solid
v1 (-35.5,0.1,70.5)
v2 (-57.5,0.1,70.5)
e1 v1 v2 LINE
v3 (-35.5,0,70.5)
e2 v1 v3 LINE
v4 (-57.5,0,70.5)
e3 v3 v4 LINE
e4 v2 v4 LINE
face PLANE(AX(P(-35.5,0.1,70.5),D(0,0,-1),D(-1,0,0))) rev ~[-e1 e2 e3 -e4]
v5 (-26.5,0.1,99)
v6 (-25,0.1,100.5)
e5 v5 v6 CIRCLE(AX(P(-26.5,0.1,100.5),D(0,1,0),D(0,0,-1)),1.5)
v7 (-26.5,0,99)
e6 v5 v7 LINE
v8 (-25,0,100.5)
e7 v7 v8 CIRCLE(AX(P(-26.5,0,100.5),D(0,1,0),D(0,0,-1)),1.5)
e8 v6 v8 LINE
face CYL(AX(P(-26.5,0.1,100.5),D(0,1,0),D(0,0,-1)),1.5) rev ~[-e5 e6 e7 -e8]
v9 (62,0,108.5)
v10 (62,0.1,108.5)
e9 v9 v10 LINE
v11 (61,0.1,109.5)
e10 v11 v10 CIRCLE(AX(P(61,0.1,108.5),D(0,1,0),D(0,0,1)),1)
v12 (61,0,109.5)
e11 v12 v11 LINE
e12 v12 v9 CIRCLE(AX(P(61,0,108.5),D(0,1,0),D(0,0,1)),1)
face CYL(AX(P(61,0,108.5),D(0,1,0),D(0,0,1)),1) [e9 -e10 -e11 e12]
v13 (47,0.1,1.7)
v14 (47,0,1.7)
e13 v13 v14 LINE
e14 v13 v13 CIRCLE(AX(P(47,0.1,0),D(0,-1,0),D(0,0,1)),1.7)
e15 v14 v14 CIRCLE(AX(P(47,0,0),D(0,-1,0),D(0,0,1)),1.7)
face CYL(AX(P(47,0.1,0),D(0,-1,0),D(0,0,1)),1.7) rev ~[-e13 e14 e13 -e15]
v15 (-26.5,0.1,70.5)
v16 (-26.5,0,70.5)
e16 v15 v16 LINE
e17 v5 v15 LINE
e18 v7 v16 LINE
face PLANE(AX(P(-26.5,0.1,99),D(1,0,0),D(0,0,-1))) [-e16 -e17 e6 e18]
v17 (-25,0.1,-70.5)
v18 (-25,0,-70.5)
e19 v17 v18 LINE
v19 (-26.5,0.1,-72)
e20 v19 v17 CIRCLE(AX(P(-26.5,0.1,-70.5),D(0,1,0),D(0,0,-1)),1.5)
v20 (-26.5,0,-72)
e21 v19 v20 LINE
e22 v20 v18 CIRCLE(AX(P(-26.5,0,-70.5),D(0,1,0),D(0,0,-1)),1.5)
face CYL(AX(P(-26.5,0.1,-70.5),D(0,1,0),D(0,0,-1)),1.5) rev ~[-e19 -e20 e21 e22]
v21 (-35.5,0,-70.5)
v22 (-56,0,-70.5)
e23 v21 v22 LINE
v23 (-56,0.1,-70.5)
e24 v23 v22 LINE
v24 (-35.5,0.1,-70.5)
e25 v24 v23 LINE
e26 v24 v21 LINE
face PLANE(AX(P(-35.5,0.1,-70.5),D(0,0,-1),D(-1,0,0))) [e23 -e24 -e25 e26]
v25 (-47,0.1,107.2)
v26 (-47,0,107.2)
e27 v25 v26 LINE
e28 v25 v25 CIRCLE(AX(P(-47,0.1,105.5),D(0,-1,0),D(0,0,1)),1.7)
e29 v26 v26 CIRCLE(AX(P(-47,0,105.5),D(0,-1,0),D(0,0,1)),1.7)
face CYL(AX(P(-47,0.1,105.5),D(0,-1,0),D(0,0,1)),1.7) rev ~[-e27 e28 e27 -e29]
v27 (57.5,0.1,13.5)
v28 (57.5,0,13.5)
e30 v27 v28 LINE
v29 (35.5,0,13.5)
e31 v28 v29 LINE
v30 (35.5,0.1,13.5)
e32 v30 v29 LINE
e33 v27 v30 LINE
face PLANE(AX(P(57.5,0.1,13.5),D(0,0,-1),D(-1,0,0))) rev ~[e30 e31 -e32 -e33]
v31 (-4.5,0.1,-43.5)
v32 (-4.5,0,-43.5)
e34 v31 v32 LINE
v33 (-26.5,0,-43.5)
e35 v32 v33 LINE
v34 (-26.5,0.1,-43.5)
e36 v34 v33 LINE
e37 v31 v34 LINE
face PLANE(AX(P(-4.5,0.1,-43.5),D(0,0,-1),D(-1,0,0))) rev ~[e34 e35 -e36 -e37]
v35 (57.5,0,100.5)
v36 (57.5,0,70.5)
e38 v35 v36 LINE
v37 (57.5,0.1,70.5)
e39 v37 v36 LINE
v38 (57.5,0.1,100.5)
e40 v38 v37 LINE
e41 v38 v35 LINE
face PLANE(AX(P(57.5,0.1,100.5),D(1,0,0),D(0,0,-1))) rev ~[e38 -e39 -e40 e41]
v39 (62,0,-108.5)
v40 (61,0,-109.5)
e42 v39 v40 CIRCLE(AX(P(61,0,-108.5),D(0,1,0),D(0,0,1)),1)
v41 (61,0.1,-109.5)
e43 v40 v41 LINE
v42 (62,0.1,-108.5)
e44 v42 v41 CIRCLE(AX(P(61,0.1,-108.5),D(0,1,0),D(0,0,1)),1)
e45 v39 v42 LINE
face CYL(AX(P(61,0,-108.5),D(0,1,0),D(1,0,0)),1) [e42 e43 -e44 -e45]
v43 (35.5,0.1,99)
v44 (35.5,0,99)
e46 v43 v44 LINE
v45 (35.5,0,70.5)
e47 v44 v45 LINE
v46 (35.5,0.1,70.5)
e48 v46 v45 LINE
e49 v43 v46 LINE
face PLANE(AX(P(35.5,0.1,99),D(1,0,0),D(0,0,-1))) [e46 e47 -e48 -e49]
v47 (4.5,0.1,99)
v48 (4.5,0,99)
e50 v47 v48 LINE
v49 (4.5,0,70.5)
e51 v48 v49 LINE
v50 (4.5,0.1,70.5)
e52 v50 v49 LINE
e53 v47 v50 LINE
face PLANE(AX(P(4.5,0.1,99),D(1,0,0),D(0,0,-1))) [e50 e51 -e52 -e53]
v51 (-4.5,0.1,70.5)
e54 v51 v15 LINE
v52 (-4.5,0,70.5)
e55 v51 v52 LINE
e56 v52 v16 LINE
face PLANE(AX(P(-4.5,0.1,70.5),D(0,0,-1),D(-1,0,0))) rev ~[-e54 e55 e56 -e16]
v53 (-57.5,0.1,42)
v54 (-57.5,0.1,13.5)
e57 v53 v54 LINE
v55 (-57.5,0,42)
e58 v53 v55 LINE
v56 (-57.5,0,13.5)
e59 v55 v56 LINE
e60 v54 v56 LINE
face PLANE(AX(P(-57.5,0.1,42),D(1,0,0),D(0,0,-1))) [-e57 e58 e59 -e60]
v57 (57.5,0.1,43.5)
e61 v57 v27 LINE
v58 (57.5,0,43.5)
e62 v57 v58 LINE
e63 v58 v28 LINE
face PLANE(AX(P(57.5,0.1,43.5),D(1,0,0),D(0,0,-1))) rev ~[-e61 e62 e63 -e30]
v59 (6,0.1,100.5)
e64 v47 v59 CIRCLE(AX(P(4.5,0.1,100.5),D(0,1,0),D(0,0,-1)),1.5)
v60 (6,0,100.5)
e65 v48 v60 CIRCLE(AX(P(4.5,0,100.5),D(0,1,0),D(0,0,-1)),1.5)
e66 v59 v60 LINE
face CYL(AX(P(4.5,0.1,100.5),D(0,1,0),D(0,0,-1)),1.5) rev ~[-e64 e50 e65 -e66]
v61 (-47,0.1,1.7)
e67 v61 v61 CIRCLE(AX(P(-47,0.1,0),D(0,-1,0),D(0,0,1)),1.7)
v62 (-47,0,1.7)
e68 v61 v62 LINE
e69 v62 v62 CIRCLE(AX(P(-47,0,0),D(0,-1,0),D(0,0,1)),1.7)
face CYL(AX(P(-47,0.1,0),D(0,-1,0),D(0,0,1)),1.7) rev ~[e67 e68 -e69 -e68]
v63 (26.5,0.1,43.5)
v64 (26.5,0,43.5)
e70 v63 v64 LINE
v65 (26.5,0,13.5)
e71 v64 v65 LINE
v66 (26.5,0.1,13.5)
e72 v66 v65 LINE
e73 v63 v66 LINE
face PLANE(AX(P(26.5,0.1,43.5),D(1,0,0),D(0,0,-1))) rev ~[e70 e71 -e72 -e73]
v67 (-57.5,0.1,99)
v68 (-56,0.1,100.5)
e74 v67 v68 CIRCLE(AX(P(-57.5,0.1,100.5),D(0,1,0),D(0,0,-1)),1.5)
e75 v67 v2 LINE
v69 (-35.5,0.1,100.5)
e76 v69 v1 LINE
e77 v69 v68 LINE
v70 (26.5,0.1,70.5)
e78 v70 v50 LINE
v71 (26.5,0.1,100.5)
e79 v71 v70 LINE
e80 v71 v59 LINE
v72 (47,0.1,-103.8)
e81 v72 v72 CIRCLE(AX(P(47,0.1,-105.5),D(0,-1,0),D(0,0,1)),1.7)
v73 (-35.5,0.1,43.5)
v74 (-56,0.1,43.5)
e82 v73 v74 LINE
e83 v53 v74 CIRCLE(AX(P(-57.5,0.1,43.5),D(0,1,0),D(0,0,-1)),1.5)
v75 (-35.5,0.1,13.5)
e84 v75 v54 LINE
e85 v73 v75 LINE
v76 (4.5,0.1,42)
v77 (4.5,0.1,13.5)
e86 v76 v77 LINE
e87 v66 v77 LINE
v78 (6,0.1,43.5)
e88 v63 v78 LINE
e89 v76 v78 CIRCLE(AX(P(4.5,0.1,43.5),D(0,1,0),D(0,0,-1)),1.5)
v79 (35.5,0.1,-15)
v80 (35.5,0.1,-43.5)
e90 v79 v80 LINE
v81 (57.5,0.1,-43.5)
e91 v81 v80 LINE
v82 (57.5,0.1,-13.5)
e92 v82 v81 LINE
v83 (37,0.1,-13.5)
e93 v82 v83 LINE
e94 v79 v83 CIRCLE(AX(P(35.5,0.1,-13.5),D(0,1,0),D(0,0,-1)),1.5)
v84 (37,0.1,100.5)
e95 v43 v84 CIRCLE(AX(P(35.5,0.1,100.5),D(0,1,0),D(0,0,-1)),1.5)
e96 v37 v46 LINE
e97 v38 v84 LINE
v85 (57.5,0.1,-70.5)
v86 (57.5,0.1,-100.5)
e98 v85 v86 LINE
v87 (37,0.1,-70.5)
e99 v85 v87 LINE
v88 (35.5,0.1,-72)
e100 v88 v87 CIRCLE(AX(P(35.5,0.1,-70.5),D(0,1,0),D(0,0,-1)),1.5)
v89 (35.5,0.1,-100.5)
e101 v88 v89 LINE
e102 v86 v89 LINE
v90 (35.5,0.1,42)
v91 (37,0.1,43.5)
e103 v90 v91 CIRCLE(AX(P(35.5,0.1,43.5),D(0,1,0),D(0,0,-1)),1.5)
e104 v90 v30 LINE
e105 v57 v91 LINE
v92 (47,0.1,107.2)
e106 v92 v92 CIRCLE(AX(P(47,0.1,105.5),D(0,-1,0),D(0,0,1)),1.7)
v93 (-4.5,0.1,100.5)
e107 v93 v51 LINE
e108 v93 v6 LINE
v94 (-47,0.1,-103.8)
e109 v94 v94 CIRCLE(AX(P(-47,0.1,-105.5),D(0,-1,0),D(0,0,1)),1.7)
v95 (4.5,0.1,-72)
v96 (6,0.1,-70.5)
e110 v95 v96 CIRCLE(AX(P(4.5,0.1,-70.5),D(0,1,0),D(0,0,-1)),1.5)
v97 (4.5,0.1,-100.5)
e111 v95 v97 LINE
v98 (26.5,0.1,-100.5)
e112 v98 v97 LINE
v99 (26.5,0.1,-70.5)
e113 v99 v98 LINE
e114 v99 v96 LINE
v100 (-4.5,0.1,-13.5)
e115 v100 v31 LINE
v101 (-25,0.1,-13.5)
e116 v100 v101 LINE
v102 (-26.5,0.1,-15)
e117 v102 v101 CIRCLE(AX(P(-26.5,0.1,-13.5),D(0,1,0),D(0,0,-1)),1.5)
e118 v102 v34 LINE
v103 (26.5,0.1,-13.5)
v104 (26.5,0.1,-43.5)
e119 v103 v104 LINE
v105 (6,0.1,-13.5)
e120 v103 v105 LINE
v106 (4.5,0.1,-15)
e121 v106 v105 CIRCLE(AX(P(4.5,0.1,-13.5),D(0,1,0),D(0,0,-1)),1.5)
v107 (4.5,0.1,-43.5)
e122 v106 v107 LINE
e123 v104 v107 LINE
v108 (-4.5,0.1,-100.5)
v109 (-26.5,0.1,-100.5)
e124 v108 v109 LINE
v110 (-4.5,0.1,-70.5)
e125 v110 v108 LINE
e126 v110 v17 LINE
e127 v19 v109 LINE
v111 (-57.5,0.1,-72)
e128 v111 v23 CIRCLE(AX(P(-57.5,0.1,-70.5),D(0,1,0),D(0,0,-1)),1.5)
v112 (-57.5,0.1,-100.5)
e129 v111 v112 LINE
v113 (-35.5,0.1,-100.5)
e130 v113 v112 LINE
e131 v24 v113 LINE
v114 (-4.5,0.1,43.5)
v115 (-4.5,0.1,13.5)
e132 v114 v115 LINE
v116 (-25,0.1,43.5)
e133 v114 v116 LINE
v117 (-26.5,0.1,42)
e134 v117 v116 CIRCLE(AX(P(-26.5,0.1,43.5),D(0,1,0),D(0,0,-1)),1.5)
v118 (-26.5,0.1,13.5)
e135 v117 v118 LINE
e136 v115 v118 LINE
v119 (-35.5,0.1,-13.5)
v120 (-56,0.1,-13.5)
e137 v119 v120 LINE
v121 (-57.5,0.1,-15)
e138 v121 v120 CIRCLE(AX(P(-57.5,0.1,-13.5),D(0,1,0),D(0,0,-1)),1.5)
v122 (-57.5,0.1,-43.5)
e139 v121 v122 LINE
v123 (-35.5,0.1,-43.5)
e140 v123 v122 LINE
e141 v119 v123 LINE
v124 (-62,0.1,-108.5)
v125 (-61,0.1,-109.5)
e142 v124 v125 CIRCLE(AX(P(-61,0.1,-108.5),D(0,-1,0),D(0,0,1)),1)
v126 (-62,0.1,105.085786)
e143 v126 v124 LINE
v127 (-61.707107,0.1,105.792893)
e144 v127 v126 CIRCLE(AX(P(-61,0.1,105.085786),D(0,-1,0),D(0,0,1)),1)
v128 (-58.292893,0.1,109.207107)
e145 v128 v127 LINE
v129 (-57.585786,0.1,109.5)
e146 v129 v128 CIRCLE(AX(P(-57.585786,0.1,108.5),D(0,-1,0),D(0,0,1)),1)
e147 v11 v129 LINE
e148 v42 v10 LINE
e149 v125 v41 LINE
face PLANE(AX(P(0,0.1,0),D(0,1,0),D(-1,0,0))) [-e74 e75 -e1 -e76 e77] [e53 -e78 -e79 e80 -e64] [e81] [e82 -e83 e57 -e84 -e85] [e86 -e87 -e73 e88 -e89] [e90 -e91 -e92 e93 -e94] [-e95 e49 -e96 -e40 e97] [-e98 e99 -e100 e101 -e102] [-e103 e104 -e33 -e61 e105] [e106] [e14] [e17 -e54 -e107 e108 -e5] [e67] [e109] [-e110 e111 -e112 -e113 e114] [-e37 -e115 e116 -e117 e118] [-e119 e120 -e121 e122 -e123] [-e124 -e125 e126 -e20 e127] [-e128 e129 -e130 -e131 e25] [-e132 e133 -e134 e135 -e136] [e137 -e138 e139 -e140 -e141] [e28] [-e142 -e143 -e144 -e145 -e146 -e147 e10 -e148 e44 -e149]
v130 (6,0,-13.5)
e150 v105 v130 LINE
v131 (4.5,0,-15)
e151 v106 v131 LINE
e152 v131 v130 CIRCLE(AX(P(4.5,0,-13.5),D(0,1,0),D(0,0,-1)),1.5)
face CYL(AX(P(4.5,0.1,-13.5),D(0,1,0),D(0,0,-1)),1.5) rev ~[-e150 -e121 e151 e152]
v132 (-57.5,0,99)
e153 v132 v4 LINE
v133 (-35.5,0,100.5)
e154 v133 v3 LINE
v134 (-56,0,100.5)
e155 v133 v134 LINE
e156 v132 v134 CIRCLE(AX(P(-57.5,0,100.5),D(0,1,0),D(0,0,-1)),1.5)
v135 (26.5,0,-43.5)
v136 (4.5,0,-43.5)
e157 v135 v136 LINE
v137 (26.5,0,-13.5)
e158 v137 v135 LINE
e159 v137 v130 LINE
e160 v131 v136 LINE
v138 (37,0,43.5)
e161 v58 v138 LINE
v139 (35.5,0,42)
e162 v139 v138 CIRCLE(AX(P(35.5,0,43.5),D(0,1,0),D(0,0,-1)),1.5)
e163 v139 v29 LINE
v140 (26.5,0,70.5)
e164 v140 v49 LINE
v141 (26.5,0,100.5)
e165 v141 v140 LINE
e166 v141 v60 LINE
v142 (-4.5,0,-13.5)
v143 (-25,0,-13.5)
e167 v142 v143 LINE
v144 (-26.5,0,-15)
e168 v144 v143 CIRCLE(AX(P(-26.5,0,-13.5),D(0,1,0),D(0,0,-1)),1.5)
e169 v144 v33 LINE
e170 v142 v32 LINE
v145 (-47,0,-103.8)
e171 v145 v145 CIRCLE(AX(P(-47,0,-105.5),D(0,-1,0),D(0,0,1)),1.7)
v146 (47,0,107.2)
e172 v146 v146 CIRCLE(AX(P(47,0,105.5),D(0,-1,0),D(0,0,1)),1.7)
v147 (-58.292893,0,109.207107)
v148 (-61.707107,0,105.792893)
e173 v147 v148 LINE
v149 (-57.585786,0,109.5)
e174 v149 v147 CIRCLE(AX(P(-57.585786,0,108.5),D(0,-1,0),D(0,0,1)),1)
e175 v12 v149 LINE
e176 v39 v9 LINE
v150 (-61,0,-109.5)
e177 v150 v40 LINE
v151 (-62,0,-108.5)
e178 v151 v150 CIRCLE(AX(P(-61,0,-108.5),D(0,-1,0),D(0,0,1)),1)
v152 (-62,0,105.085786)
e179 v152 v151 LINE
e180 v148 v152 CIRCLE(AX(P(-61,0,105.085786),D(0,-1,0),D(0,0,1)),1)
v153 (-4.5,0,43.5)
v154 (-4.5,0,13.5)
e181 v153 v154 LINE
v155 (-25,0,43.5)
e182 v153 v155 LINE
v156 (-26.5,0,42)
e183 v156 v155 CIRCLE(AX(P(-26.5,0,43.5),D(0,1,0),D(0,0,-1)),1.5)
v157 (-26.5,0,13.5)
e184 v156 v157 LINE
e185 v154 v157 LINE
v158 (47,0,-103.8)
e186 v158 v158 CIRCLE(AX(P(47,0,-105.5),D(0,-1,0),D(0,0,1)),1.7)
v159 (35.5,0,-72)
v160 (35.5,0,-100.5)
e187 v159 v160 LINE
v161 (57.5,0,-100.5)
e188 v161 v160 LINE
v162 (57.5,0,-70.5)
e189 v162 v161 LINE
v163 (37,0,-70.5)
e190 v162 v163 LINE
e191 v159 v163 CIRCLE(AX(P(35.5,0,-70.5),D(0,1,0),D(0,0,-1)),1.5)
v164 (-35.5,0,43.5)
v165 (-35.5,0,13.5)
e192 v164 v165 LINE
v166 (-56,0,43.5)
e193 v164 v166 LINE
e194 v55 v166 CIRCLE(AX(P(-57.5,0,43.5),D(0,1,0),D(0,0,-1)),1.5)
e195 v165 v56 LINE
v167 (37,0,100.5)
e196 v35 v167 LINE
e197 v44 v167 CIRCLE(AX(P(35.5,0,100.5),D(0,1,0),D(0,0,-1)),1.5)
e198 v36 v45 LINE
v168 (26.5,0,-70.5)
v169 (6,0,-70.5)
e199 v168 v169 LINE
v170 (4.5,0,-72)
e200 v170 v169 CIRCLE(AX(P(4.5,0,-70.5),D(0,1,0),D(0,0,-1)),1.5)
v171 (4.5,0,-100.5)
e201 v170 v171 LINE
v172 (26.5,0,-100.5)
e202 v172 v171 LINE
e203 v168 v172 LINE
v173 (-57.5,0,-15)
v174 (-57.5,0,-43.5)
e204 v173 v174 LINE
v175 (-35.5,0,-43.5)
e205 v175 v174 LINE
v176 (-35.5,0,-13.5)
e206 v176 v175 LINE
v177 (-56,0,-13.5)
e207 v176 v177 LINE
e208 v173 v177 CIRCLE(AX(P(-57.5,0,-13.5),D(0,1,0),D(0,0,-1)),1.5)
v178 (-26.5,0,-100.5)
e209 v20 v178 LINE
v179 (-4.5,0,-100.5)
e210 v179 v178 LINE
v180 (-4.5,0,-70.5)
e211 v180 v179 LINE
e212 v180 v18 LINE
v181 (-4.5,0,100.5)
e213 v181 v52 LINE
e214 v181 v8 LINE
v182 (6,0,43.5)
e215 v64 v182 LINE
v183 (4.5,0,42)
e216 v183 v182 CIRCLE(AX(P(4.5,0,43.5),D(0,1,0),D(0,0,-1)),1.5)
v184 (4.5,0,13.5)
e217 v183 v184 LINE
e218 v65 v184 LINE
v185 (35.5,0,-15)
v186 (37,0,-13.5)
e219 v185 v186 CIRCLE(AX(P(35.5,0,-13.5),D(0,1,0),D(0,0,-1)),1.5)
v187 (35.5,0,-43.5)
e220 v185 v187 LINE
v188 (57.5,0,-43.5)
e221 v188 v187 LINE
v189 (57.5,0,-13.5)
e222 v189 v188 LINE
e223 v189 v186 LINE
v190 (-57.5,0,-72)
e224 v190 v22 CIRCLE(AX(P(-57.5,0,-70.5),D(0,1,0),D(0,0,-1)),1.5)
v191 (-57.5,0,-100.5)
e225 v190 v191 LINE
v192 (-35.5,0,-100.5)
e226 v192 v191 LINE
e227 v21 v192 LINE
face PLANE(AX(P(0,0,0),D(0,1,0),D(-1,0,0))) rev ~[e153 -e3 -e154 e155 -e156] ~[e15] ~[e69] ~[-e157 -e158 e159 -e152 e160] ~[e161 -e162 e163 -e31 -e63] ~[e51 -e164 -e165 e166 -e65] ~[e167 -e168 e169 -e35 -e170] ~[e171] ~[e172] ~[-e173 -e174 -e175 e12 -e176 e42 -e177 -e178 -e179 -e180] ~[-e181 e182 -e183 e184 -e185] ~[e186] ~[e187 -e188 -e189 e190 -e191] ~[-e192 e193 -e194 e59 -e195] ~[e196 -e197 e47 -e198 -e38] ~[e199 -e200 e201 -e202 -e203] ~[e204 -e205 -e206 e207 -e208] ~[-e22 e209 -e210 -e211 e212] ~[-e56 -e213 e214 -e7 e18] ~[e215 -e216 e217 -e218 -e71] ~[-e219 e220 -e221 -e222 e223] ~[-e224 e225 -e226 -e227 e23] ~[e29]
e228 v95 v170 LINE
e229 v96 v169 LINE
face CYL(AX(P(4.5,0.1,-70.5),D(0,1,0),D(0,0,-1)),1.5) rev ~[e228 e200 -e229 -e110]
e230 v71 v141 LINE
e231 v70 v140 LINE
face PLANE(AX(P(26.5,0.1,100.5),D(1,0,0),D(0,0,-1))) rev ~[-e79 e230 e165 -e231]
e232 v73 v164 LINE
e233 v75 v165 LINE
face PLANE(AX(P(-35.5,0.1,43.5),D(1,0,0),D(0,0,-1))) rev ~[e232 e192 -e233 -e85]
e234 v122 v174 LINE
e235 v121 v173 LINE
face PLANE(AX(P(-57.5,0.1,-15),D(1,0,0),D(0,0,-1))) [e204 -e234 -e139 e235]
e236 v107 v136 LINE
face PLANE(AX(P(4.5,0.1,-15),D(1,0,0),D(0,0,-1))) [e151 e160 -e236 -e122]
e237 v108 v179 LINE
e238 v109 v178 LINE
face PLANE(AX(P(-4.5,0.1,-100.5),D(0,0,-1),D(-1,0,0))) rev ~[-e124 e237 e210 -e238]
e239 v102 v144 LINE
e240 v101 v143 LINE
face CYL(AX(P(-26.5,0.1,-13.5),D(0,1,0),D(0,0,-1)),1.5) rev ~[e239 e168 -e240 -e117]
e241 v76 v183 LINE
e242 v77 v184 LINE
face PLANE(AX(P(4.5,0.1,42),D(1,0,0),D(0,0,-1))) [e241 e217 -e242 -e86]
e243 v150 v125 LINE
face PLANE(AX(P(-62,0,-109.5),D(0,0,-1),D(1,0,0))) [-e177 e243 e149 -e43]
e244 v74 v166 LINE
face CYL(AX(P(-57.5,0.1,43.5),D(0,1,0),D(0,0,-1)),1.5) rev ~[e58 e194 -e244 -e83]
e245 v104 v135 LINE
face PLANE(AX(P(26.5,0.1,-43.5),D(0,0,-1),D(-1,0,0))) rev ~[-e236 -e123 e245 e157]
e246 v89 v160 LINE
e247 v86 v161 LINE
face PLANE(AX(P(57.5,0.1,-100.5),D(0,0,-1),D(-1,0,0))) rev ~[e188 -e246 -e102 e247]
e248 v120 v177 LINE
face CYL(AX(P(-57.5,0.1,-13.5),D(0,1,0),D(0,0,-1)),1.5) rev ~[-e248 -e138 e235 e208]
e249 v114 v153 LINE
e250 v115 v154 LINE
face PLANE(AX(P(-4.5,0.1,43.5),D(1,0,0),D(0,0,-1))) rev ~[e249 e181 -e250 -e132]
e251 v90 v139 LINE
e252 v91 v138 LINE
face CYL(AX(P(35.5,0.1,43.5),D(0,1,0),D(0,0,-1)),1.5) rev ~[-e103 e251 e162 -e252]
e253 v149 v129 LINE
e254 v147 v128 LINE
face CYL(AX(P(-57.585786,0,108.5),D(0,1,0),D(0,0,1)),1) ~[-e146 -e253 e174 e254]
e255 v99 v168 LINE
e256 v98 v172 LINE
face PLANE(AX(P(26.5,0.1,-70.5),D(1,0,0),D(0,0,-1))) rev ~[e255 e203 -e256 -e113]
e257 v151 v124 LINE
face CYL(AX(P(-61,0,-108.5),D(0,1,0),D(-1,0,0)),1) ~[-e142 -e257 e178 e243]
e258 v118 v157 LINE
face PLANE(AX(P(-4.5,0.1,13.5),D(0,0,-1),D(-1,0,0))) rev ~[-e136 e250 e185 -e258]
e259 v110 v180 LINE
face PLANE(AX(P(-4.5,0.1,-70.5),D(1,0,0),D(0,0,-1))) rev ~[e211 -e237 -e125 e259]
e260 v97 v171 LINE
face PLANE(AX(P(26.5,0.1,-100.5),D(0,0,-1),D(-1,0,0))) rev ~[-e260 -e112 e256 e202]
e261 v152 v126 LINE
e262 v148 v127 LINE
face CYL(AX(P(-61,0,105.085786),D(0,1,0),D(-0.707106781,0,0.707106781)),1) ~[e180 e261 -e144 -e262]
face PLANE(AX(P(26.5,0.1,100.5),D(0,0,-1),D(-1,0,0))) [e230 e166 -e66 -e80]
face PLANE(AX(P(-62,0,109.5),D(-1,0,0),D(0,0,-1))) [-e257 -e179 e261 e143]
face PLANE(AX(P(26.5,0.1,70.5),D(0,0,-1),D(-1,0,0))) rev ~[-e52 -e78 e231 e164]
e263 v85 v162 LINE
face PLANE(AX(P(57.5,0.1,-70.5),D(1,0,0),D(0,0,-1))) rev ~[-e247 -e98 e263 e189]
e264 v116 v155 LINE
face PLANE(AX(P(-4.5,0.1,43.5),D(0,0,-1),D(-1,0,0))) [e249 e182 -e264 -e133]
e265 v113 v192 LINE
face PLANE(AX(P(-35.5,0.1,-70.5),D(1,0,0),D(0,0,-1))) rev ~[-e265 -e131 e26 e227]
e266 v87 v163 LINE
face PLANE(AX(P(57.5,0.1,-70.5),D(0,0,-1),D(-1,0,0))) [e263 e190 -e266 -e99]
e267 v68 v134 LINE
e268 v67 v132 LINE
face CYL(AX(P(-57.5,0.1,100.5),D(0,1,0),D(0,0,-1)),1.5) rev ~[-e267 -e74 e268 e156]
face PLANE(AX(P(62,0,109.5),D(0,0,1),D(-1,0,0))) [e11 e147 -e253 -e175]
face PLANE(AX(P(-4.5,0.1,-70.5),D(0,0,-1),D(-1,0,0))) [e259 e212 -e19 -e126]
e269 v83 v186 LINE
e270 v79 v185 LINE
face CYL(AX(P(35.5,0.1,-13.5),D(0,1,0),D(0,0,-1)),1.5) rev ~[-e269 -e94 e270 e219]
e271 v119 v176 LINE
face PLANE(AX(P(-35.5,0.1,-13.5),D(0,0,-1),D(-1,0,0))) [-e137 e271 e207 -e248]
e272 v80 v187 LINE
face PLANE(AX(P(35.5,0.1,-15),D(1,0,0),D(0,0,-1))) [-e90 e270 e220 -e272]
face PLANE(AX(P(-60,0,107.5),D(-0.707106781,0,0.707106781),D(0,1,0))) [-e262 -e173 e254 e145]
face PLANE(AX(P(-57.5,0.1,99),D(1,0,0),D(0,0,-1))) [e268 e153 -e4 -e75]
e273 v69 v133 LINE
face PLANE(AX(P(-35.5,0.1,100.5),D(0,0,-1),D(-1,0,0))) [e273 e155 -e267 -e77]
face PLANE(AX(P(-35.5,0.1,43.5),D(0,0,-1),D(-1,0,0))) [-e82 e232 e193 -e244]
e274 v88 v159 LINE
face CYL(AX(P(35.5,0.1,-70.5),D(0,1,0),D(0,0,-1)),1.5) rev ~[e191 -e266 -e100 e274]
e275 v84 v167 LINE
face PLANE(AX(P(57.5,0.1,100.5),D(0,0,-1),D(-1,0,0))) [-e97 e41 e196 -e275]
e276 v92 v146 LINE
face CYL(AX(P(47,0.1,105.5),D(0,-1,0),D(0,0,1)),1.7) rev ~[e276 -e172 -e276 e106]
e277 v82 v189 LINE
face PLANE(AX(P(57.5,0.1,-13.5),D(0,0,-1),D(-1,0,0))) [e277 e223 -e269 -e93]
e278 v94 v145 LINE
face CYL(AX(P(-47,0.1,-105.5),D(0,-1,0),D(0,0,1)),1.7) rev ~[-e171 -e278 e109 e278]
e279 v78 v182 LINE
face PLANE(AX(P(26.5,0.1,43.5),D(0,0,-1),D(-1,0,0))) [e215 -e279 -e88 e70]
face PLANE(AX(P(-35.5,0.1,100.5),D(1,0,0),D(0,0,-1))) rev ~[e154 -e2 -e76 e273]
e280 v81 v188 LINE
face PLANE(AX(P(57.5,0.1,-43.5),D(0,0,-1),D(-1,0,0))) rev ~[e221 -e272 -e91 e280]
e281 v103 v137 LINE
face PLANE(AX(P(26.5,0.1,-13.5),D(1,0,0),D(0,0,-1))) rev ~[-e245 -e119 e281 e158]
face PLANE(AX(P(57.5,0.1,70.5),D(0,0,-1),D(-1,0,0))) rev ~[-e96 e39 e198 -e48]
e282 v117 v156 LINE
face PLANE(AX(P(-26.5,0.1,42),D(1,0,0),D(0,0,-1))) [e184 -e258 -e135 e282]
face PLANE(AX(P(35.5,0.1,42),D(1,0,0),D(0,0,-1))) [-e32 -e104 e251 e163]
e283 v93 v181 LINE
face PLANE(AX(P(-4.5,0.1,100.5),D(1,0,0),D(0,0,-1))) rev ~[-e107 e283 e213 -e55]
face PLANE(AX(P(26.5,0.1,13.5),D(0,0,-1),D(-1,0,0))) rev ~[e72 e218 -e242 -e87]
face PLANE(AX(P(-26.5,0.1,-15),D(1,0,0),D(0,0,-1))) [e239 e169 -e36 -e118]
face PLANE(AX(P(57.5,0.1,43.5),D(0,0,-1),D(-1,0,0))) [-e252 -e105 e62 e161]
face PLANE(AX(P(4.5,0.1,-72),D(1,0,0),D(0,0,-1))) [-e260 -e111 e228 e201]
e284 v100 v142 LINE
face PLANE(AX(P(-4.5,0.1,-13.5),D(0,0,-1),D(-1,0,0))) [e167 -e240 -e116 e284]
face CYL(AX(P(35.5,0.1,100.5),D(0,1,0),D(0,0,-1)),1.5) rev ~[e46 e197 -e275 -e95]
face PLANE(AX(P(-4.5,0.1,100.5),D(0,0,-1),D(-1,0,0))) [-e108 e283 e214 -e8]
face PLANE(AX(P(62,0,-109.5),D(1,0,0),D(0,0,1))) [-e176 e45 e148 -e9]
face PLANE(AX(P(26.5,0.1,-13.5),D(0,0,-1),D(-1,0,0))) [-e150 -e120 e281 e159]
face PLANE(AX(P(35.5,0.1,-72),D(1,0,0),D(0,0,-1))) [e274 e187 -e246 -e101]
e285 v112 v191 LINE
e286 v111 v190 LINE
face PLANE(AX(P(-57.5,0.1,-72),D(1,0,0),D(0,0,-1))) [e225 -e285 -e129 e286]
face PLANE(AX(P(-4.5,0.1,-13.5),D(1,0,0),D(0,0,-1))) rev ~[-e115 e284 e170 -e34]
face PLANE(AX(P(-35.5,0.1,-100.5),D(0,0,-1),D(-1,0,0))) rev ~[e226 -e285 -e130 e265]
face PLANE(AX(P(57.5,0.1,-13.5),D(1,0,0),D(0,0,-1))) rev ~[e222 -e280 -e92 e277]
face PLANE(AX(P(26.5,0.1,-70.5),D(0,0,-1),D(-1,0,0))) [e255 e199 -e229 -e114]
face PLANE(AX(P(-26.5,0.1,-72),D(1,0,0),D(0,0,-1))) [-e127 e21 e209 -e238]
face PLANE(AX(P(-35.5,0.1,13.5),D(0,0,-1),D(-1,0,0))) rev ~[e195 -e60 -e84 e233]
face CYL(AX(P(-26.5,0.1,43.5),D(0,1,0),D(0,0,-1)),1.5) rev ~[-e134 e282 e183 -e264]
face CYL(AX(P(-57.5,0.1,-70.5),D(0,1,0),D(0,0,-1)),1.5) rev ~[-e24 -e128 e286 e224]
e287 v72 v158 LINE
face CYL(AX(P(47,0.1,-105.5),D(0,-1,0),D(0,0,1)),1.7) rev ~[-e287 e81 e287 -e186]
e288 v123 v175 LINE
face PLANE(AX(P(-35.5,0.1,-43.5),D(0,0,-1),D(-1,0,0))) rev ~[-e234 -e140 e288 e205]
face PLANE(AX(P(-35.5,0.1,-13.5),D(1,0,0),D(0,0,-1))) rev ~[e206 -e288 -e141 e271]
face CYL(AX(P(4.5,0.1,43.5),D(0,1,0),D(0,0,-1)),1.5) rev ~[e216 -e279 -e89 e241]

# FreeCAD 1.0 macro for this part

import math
import FreeCAD as App
import Part
import Sketcher


def edges_at(feature, points):
    """Names of the edges that pass closest to the given points."""
    edges = feature.Shape.Edges
    near = lambda p: min(range(len(edges)), key=lambda i: edges[i].distToShape(Part.Vertex(*p))[0])
    return sorted({f"Edge{near(p) + 1}" for p in points})


def add_polygon(sketch, points):
    """Adds a closed chain of lines whose ends are joined by coincident constraints."""
    first, n = sketch.GeometryCount, len(points)
    for a, b in zip(points, points[1:] + points[:1]):
        sketch.addGeometry(Part.LineSegment(App.Vector(*a, 0), App.Vector(*b, 0)), False)
    for i in range(n):
        sketch.addConstraint(Sketcher.Constraint("Coincident", first + i, 2, first + (i + 1) % n, 1))

doc = App.newDocument("Part")
body = doc.addObject("PartDesign::Body", "Body")

# Sketch on XZ plane
sketch1 = body.newObject("Sketcher::SketchObject", "Sketch")
sketch1.AttachmentSupport = (doc.getObject("XZ_Plane"), [""])
sketch1.MapMode = "FlatFace"
add_polygon(sketch1, [(-62, 110), (62, 110), (62, -110), (-62, -110)])  # lines 0-3
sketch1.addConstraint([
    Sketcher.Constraint("Horizontal", 0),
    Sketcher.Constraint("Vertical", 1),
    Sketcher.Constraint("Horizontal", 2),
    Sketcher.Constraint("Vertical", 3),
    Sketcher.Constraint("Symmetric", 0, 2, 2, 2, -1, 1),
    Sketcher.Constraint("DistanceX", 0, 1, 0, 2, 124.0),
    Sketcher.Constraint("DistanceY", 1, 2, 1, 1, 219.0),
])
pad1 = body.newObject("PartDesign::Pad", "Pad")
pad1.Profile = sketch1
pad1.Length = 0.1
pad1.Reversed = True
doc.recompute()

chamfer = body.newObject("PartDesign::Chamfer", "Chamfer")
chamfer.Base = (pad1, edges_at(pad1, [(-62, 0.05, 109.5)]))
chamfer.Size = 4

# Sketch on XZ plane
sketch2 = body.newObject("Sketcher::SketchObject", "Sketch001")
sketch2.AttachmentSupport = (doc.getObject("XZ_Plane"), [""])
sketch2.MapMode = "FlatFace"
sketch2.AttachmentOffset = App.Placement(App.Vector(0, 0, -0.1), App.Rotation())
sketch2.addGeometry([
    Part.LineSegment(App.Vector(-56, 100.5, 0), App.Vector(-35.5, 100.5, 0)),  # 0
    Part.LineSegment(App.Vector(-35.5, 100.5, 0), App.Vector(-35.5, 70.5, 0)),  # 1
    Part.LineSegment(App.Vector(-35.5, 70.5, 0), App.Vector(-57.5, 70.5, 0)),  # 2
    Part.LineSegment(App.Vector(-57.5, 70.5, 0), App.Vector(-57.5, 99, 0)),  # 3
    Part.ArcOfCircle(Part.Circle(App.Vector(-57.5, 100.5, 0), App.Vector(0, 0, 1), 1.5), math.radians(0), math.radians(270)),  # 4
    Part.LineSegment(App.Vector(-56, 43.5, 0), App.Vector(-35.5, 43.5, 0)),  # 5
    Part.LineSegment(App.Vector(-35.5, 43.5, 0), App.Vector(-35.5, 13.5, 0)),  # 6
    Part.LineSegment(App.Vector(-35.5, 13.5, 0), App.Vector(-57.5, 13.5, 0)),  # 7
    Part.LineSegment(App.Vector(-57.5, 13.5, 0), App.Vector(-57.5, 42, 0)),  # 8
    Part.ArcOfCircle(Part.Circle(App.Vector(-57.5, 43.5, 0), App.Vector(0, 0, 1), 1.5), math.radians(0), math.radians(270)),  # 9
    Part.LineSegment(App.Vector(-56, -13.5, 0), App.Vector(-35.5, -13.5, 0)),  # 10
    Part.LineSegment(App.Vector(-35.5, -13.5, 0), App.Vector(-35.5, -43.5, 0)),  # 11
    Part.LineSegment(App.Vector(-35.5, -43.5, 0), App.Vector(-57.5, -43.5, 0)),  # 12
    Part.LineSegment(App.Vector(-57.5, -43.5, 0), App.Vector(-57.5, -15, 0)),  # 13
    Part.ArcOfCircle(Part.Circle(App.Vector(-57.5, -13.5, 0), App.Vector(0, 0, 1), 1.5), math.radians(0), math.radians(270)),  # 14
    Part.LineSegment(App.Vector(-56, -70.5, 0), App.Vector(-35.5, -70.5, 0)),  # 15
    Part.LineSegment(App.Vector(-35.5, -70.5, 0), App.Vector(-35.5, -100.5, 0)),  # 16
    Part.LineSegment(App.Vector(-35.5, -100.5, 0), App.Vector(-57.5, -100.5, 0)),  # 17
    Part.LineSegment(App.Vector(-57.5, -100.5, 0), App.Vector(-57.5, -72, 0)),  # 18
    Part.ArcOfCircle(Part.Circle(App.Vector(-57.5, -70.5, 0), App.Vector(0, 0, 1), 1.5), math.radians(0), math.radians(270)),  # 19
    Part.LineSegment(App.Vector(-25, 100.5, 0), App.Vector(-4.5, 100.5, 0)),  # 20
    Part.LineSegment(App.Vector(-4.5, 100.5, 0), App.Vector(-4.5, 70.5, 0)),  # 21
    Part.LineSegment(App.Vector(-4.5, 70.5, 0), App.Vector(-26.5, 70.5, 0)),  # 22
    Part.LineSegment(App.Vector(-26.5, 70.5, 0), App.Vector(-26.5, 99, 0)),  # 23
    Part.ArcOfCircle(Part.Circle(App.Vector(-26.5, 100.5, 0), App.Vector(0, 0, 1), 1.5), math.radians(0), math.radians(270)),  # 24
    Part.LineSegment(App.Vector(-25, 43.5, 0), App.Vector(-4.5, 43.5, 0)),  # 25
    Part.LineSegment(App.Vector(-4.5, 43.5, 0), App.Vector(-4.5, 13.5, 0)),  # 26
    Part.LineSegment(App.Vector(-4.5, 13.5, 0), App.Vector(-26.5, 13.5, 0)),  # 27
    Part.LineSegment(App.Vector(-26.5, 13.5, 0), App.Vector(-26.5, 42, 0)),  # 28
    Part.ArcOfCircle(Part.Circle(App.Vector(-26.5, 43.5, 0), App.Vector(0, 0, 1), 1.5), math.radians(0), math.radians(270)),  # 29
    Part.LineSegment(App.Vector(-25, -13.5, 0), App.Vector(-4.5, -13.5, 0)),  # 30
    Part.LineSegment(App.Vector(-4.5, -13.5, 0), App.Vector(-4.5, -43.5, 0)),  # 31
    Part.LineSegment(App.Vector(-4.5, -43.5, 0), App.Vector(-26.5, -43.5, 0)),  # 32
    Part.LineSegment(App.Vector(-26.5, -43.5, 0), App.Vector(-26.5, -15, 0)),  # 33
    Part.ArcOfCircle(Part.Circle(App.Vector(-26.5, -13.5, 0), App.Vector(0, 0, 1), 1.5), math.radians(0), math.radians(270)),  # 34
    Part.LineSegment(App.Vector(-25, -70.5, 0), App.Vector(-4.5, -70.5, 0)),  # 35
    Part.LineSegment(App.Vector(-4.5, -70.5, 0), App.Vector(-4.5, -100.5, 0)),  # 36
    Part.LineSegment(App.Vector(-4.5, -100.5, 0), App.Vector(-26.5, -100.5, 0)),  # 37
    Part.LineSegment(App.Vector(-26.5, -100.5, 0), App.Vector(-26.5, -72, 0)),  # 38
    Part.ArcOfCircle(Part.Circle(App.Vector(-26.5, -70.5, 0), App.Vector(0, 0, 1), 1.5), math.radians(0), math.radians(270)),  # 39
    Part.LineSegment(App.Vector(6, 100.5, 0), App.Vector(26.5, 100.5, 0)),  # 40
    Part.LineSegment(App.Vector(26.5, 100.5, 0), App.Vector(26.5, 70.5, 0)),  # 41
    Part.LineSegment(App.Vector(26.5, 70.5, 0), App.Vector(4.5, 70.5, 0)),  # 42
    Part.LineSegment(App.Vector(4.5, 70.5, 0), App.Vector(4.5, 99, 0)),  # 43
    Part.ArcOfCircle(Part.Circle(App.Vector(4.5, 100.5, 0), App.Vector(0, 0, 1), 1.5), math.radians(0), math.radians(270)),  # 44
    Part.LineSegment(App.Vector(6, 43.5, 0), App.Vector(26.5, 43.5, 0)),  # 45
    Part.LineSegment(App.Vector(26.5, 43.5, 0), App.Vector(26.5, 13.5, 0)),  # 46
    Part.LineSegment(App.Vector(26.5, 13.5, 0), App.Vector(4.5, 13.5, 0)),  # 47
    Part.LineSegment(App.Vector(4.5, 13.5, 0), App.Vector(4.5, 42, 0)),  # 48
    Part.ArcOfCircle(Part.Circle(App.Vector(4.5, 43.5, 0), App.Vector(0, 0, 1), 1.5), math.radians(0), math.radians(270)),  # 49
    Part.LineSegment(App.Vector(6, -13.5, 0), App.Vector(26.5, -13.5, 0)),  # 50
    Part.LineSegment(App.Vector(26.5, -13.5, 0), App.Vector(26.5, -43.5, 0)),  # 51
    Part.LineSegment(App.Vector(26.5, -43.5, 0), App.Vector(4.5, -43.5, 0)),  # 52
    Part.LineSegment(App.Vector(4.5, -43.5, 0), App.Vector(4.5, -15, 0)),  # 53
    Part.ArcOfCircle(Part.Circle(App.Vector(4.5, -13.5, 0), App.Vector(0, 0, 1), 1.5), math.radians(0), math.radians(270)),  # 54
    Part.LineSegment(App.Vector(6, -70.5, 0), App.Vector(26.5, -70.5, 0)),  # 55
    Part.LineSegment(App.Vector(26.5, -70.5, 0), App.Vector(26.5, -100.5, 0)),  # 56
    Part.LineSegment(App.Vector(26.5, -100.5, 0), App.Vector(4.5, -100.5, 0)),  # 57
    Part.LineSegment(App.Vector(4.5, -100.5, 0), App.Vector(4.5, -72, 0)),  # 58
    Part.ArcOfCircle(Part.Circle(App.Vector(4.5, -70.5, 0), App.Vector(0, 0, 1), 1.5), math.radians(0), math.radians(270)),  # 59
    Part.LineSegment(App.Vector(37, 100.5, 0), App.Vector(57.5, 100.5, 0)),  # 60
    Part.LineSegment(App.Vector(57.5, 100.5, 0), App.Vector(57.5, 70.5, 0)),  # 61
    Part.LineSegment(App.Vector(57.5, 70.5, 0), App.Vector(35.5, 70.5, 0)),  # 62
    Part.LineSegment(App.Vector(35.5, 70.5, 0), App.Vector(35.5, 99, 0)),  # 63
    Part.ArcOfCircle(Part.Circle(App.Vector(35.5, 100.5, 0), App.Vector(0, 0, 1), 1.5), math.radians(0), math.radians(270)),  # 64
    Part.LineSegment(App.Vector(37, 43.5, 0), App.Vector(57.5, 43.5, 0)),  # 65
    Part.LineSegment(App.Vector(57.5, 43.5, 0), App.Vector(57.5, 13.5, 0)),  # 66
    Part.LineSegment(App.Vector(57.5, 13.5, 0), App.Vector(35.5, 13.5, 0)),  # 67
    Part.LineSegment(App.Vector(35.5, 13.5, 0), App.Vector(35.5, 42, 0)),  # 68
    Part.ArcOfCircle(Part.Circle(App.Vector(35.5, 43.5, 0), App.Vector(0, 0, 1), 1.5), math.radians(0), math.radians(270)),  # 69
    Part.LineSegment(App.Vector(37, -13.5, 0), App.Vector(57.5, -13.5, 0)),  # 70
    Part.LineSegment(App.Vector(57.5, -13.5, 0), App.Vector(57.5, -43.5, 0)),  # 71
    Part.LineSegment(App.Vector(57.5, -43.5, 0), App.Vector(35.5, -43.5, 0)),  # 72
    Part.LineSegment(App.Vector(35.5, -43.5, 0), App.Vector(35.5, -15, 0)),  # 73
    Part.ArcOfCircle(Part.Circle(App.Vector(35.5, -13.5, 0), App.Vector(0, 0, 1), 1.5), math.radians(0), math.radians(270)),  # 74
    Part.LineSegment(App.Vector(37, -70.5, 0), App.Vector(57.5, -70.5, 0)),  # 75
    Part.LineSegment(App.Vector(57.5, -70.5, 0), App.Vector(57.5, -100.5, 0)),  # 76
    Part.LineSegment(App.Vector(57.5, -100.5, 0), App.Vector(35.5, -100.5, 0)),  # 77
    Part.LineSegment(App.Vector(35.5, -100.5, 0), App.Vector(35.5, -72, 0)),  # 78
    Part.ArcOfCircle(Part.Circle(App.Vector(35.5, -70.5, 0), App.Vector(0, 0, 1), 1.5), math.radians(0), math.radians(270)),  # 79
], False)
sketch2.addConstraint([
    Sketcher.Constraint("Coincident", 0, 2, 1, 1),
    Sketcher.Constraint("Coincident", 1, 2, 2, 1),
    Sketcher.Constraint("Coincident", 2, 2, 3, 1),
    Sketcher.Constraint("Coincident", 3, 2, 4, 2),
    Sketcher.Constraint("Coincident", 4, 1, 0, 1),
    Sketcher.Constraint("Coincident", 5, 2, 6, 1),
    Sketcher.Constraint("Coincident", 6, 2, 7, 1),
    Sketcher.Constraint("Coincident", 7, 2, 8, 1),
    Sketcher.Constraint("Coincident", 8, 2, 9, 2),
    Sketcher.Constraint("Coincident", 9, 1, 5, 1),
    Sketcher.Constraint("Coincident", 10, 2, 11, 1),
    Sketcher.Constraint("Coincident", 11, 2, 12, 1),
    Sketcher.Constraint("Coincident", 12, 2, 13, 1),
    Sketcher.Constraint("Coincident", 13, 2, 14, 2),
    Sketcher.Constraint("Coincident", 14, 1, 10, 1),
    Sketcher.Constraint("Coincident", 15, 2, 16, 1),
    Sketcher.Constraint("Coincident", 16, 2, 17, 1),
    Sketcher.Constraint("Coincident", 17, 2, 18, 1),
    Sketcher.Constraint("Coincident", 18, 2, 19, 2),
    Sketcher.Constraint("Coincident", 19, 1, 15, 1),
    Sketcher.Constraint("Coincident", 20, 2, 21, 1),
    Sketcher.Constraint("Coincident", 21, 2, 22, 1),
    Sketcher.Constraint("Coincident", 22, 2, 23, 1),
    Sketcher.Constraint("Coincident", 23, 2, 24, 2),
    Sketcher.Constraint("Coincident", 24, 1, 20, 1),
    Sketcher.Constraint("Coincident", 25, 2, 26, 1),
    Sketcher.Constraint("Coincident", 26, 2, 27, 1),
    Sketcher.Constraint("Coincident", 27, 2, 28, 1),
    Sketcher.Constraint("Coincident", 28, 2, 29, 2),
    Sketcher.Constraint("Coincident", 29, 1, 25, 1),
    Sketcher.Constraint("Coincident", 30, 2, 31, 1),
    Sketcher.Constraint("Coincident", 31, 2, 32, 1),
    Sketcher.Constraint("Coincident", 32, 2, 33, 1),
    Sketcher.Constraint("Coincident", 33, 2, 34, 2),
    Sketcher.Constraint("Coincident", 34, 1, 30, 1),
    Sketcher.Constraint("Coincident", 35, 2, 36, 1),
    Sketcher.Constraint("Coincident", 36, 2, 37, 1),
    Sketcher.Constraint("Coincident", 37, 2, 38, 1),
    Sketcher.Constraint("Coincident", 38, 2, 39, 2),
    Sketcher.Constraint("Coincident", 39, 1, 35, 1),
    Sketcher.Constraint("Coincident", 40, 2, 41, 1),
    Sketcher.Constraint("Coincident", 41, 2, 42, 1),
    Sketcher.Constraint("Coincident", 42, 2, 43, 1),
    Sketcher.Constraint("Coincident", 43, 2, 44, 2),
    Sketcher.Constraint("Coincident", 44, 1, 40, 1),
    Sketcher.Constraint("Coincident", 45, 2, 46, 1),
    Sketcher.Constraint("Coincident", 46, 2, 47, 1),
    Sketcher.Constraint("Coincident", 47, 2, 48, 1),
    Sketcher.Constraint("Coincident", 48, 2, 49, 2),
    Sketcher.Constraint("Coincident", 49, 1, 45, 1),
    Sketcher.Constraint("Coincident", 50, 2, 51, 1),
    Sketcher.Constraint("Coincident", 51, 2, 52, 1),
    Sketcher.Constraint("Coincident", 52, 2, 53, 1),
    Sketcher.Constraint("Coincident", 53, 2, 54, 2),
    Sketcher.Constraint("Coincident", 54, 1, 50, 1),
    Sketcher.Constraint("Coincident", 55, 2, 56, 1),
    Sketcher.Constraint("Coincident", 56, 2, 57, 1),
    Sketcher.Constraint("Coincident", 57, 2, 58, 1),
    Sketcher.Constraint("Coincident", 58, 2, 59, 2),
    Sketcher.Constraint("Coincident", 59, 1, 55, 1),
    Sketcher.Constraint("Coincident", 60, 2, 61, 1),
    Sketcher.Constraint("Coincident", 61, 2, 62, 1),
    Sketcher.Constraint("Coincident", 62, 2, 63, 1),
    Sketcher.Constraint("Coincident", 63, 2, 64, 2),
    Sketcher.Constraint("Coincident", 64, 1, 60, 1),
    Sketcher.Constraint("Coincident", 65, 2, 66, 1),
    Sketcher.Constraint("Coincident", 66, 2, 67, 1),
    Sketcher.Constraint("Coincident", 67, 2, 68, 1),
    Sketcher.Constraint("Coincident", 68, 2, 69, 2),
    Sketcher.Constraint("Coincident", 69, 1, 65, 1),
    Sketcher.Constraint("Coincident", 70, 2, 71, 1),
    Sketcher.Constraint("Coincident", 71, 2, 72, 1),
    Sketcher.Constraint("Coincident", 72, 2, 73, 1),
    Sketcher.Constraint("Coincident", 73, 2, 74, 2),
    Sketcher.Constraint("Coincident", 74, 1, 70, 1),
    Sketcher.Constraint("Coincident", 75, 2, 76, 1),
    Sketcher.Constraint("Coincident", 76, 2, 77, 1),
    Sketcher.Constraint("Coincident", 77, 2, 78, 1),
    Sketcher.Constraint("Coincident", 78, 2, 79, 2),
    Sketcher.Constraint("Coincident", 79, 1, 75, 1),
    Sketcher.Constraint("Horizontal", 0),
    Sketcher.Constraint("Vertical", 1),
    Sketcher.Constraint("Horizontal", 2),
    Sketcher.Constraint("Vertical", 3),
    Sketcher.Constraint("Horizontal", 5),
    Sketcher.Constraint("Vertical", 6),
    Sketcher.Constraint("Horizontal", 7),
    Sketcher.Constraint("Vertical", 8),
    Sketcher.Constraint("Horizontal", 10),
    Sketcher.Constraint("Vertical", 11),
    Sketcher.Constraint("Horizontal", 12),
    Sketcher.Constraint("Vertical", 13),
    Sketcher.Constraint("Horizontal", 15),
    Sketcher.Constraint("Vertical", 16),
    Sketcher.Constraint("Horizontal", 17),
    Sketcher.Constraint("Vertical", 18),
    Sketcher.Constraint("Horizontal", 20),
    Sketcher.Constraint("Vertical", 21),
    Sketcher.Constraint("Horizontal", 22),
    Sketcher.Constraint("Vertical", 23),
    Sketcher.Constraint("Horizontal", 25),
    Sketcher.Constraint("Vertical", 26),
    Sketcher.Constraint("Horizontal", 27),
    Sketcher.Constraint("Vertical", 28),
    Sketcher.Constraint("Horizontal", 30),
    Sketcher.Constraint("Vertical", 31),
    Sketcher.Constraint("Horizontal", 32),
    Sketcher.Constraint("Vertical", 33),
    Sketcher.Constraint("Horizontal", 35),
    Sketcher.Constraint("Vertical", 36),
    Sketcher.Constraint("Horizontal", 37),
    Sketcher.Constraint("Vertical", 38),
    Sketcher.Constraint("Horizontal", 40),
    Sketcher.Constraint("Vertical", 41),
    Sketcher.Constraint("Horizontal", 42),
    Sketcher.Constraint("Vertical", 43),
    Sketcher.Constraint("Horizontal", 45),
    Sketcher.Constraint("Vertical", 46),
    Sketcher.Constraint("Horizontal", 47),
    Sketcher.Constraint("Vertical", 48),
    Sketcher.Constraint("Horizontal", 50),
    Sketcher.Constraint("Vertical", 51),
    Sketcher.Constraint("Horizontal", 52),
    Sketcher.Constraint("Vertical", 53),
    Sketcher.Constraint("Horizontal", 55),
    Sketcher.Constraint("Vertical", 56),
    Sketcher.Constraint("Horizontal", 57),
    Sketcher.Constraint("Vertical", 58),
    Sketcher.Constraint("Horizontal", 60),
    Sketcher.Constraint("Vertical", 61),
    Sketcher.Constraint("Horizontal", 62),
    Sketcher.Constraint("Vertical", 63),
    Sketcher.Constraint("Horizontal", 65),
    Sketcher.Constraint("Vertical", 66),
    Sketcher.Constraint("Horizontal", 67),
    Sketcher.Constraint("Vertical", 68),
    Sketcher.Constraint("Horizontal", 70),
    Sketcher.Constraint("Vertical", 71),
    Sketcher.Constraint("Horizontal", 72),
    Sketcher.Constraint("Vertical", 73),
    Sketcher.Constraint("Horizontal", 75),
    Sketcher.Constraint("Vertical", 76),
    Sketcher.Constraint("Horizontal", 77),
    Sketcher.Constraint("Vertical", 78),
    Sketcher.Constraint("Equal", 4, 9),
    Sketcher.Constraint("Equal", 9, 14),
    Sketcher.Constraint("Equal", 14, 19),
    Sketcher.Constraint("Equal", 19, 24),
    Sketcher.Constraint("Equal", 24, 29),
    Sketcher.Constraint("Equal", 29, 34),
    Sketcher.Constraint("Equal", 34, 39),
    Sketcher.Constraint("Equal", 39, 44),
    Sketcher.Constraint("Equal", 44, 49),
    Sketcher.Constraint("Equal", 49, 54),
    Sketcher.Constraint("Equal", 54, 59),
    Sketcher.Constraint("Equal", 59, 64),
    Sketcher.Constraint("Equal", 64, 69),
    Sketcher.Constraint("Equal", 69, 74),
    Sketcher.Constraint("Equal", 74, 79),
    Sketcher.Constraint("Symmetric", 37, 2, 40, 2, -1, 1),
    Sketcher.Constraint("Symmetric", 35, 2, 42, 2, -1, 1),
    Sketcher.Constraint("Symmetric", 32, 2, 45, 2, -1, 1),
    Sketcher.Constraint("Symmetric", 30, 2, 47, 2, -1, 1),
    Sketcher.Constraint("Symmetric", 27, 2, 50, 2, -1, 1),
    Sketcher.Constraint("Symmetric", 25, 2, 52, 2, -1, 1),
    Sketcher.Constraint("Symmetric", 22, 2, 55, 2, -1, 1),
    Sketcher.Constraint("Symmetric", 20, 2, 57, 2, -1, 1),
    Sketcher.Constraint("Symmetric", 17, 2, 60, 2, -1, 1),
    Sketcher.Constraint("Symmetric", 15, 2, 62, 2, -1, 1),
    Sketcher.Constraint("Symmetric", 12, 2, 65, 2, -1, 1),
    Sketcher.Constraint("Symmetric", 10, 2, 67, 2, -1, 1),
    Sketcher.Constraint("Symmetric", 7, 2, 70, 2, -1, 1),
    Sketcher.Constraint("Symmetric", 5, 2, 72, 2, -1, 1),
    Sketcher.Constraint("Symmetric", 2, 2, 75, 2, -1, 1),
    Sketcher.Constraint("Symmetric", 0, 2, 77, 2, -1, 1),
    Sketcher.Constraint("Symmetric", 22, 2, 41, 2, -2),
    Sketcher.Constraint("Symmetric", 27, 2, 46, 2, -2),
    Sketcher.Constraint("Symmetric", 31, 2, 52, 2, -2),
    Sketcher.Constraint("Symmetric", 36, 2, 57, 2, -2),
    Sketcher.Constraint("Symmetric", 2, 2, 61, 2, -2),
    Sketcher.Constraint("Symmetric", 7, 2, 66, 2, -2),
    Sketcher.Constraint("Symmetric", 11, 2, 72, 2, -2),
    Sketcher.Constraint("Symmetric", 16, 2, 77, 2, -2),
    Sketcher.Constraint("Horizontal", 4, 3, 24, 3),
    Sketcher.Constraint("Horizontal", 9, 3, 29, 3),
    Sketcher.Constraint("Horizontal", 14, 3, 34, 3),
    Sketcher.Constraint("Horizontal", 19, 3, 39, 3),
    Sketcher.Constraint("Horizontal", 24, 3, 44, 3),
    Sketcher.Constraint("Horizontal", 29, 3, 49, 3),
    Sketcher.Constraint("Horizontal", 34, 3, 54, 3),
    Sketcher.Constraint("Horizontal", 39, 3, 59, 3),
    Sketcher.Constraint("Horizontal", 44, 3, 64, 3),
    Sketcher.Constraint("Horizontal", 49, 3, 69, 3),
    Sketcher.Constraint("Horizontal", 54, 3, 74, 3),
    Sketcher.Constraint("Horizontal", 59, 3, 79, 3),
    Sketcher.Constraint("Horizontal", 64, 3, 0, 2),
    Sketcher.Constraint("Horizontal", 69, 3, 5, 2),
    Sketcher.Constraint("Horizontal", 74, 3, 10, 2),
    Sketcher.Constraint("Horizontal", 79, 3, 15, 2),
    Sketcher.Constraint("Horizontal", 4, 1, 20, 2),
    Sketcher.Constraint("Horizontal", 2, 2, 21, 2),
    Sketcher.Constraint("Horizontal", 9, 1, 25, 2),
    Sketcher.Constraint("Horizontal", 7, 2, 26, 2),
    Sketcher.Constraint("Vertical", 4, 3, 9, 3),
    Sketcher.Constraint("Vertical", 9, 3, 14, 3),
    Sketcher.Constraint("Vertical", 14, 3, 19, 3),
    Sketcher.Constraint("Vertical", 24, 3, 29, 3),
    Sketcher.Constraint("Vertical", 29, 3, 34, 3),
    Sketcher.Constraint("Vertical", 34, 3, 39, 3),
    Sketcher.Constraint("Vertical", 44, 3, 49, 3),
    Sketcher.Constraint("Vertical", 49, 3, 54, 3),
    Sketcher.Constraint("Vertical", 54, 3, 59, 3),
    Sketcher.Constraint("Vertical", 64, 3, 69, 3),
    Sketcher.Constraint("Vertical", 69, 3, 74, 3),
    Sketcher.Constraint("Vertical", 74, 3, 79, 3),
    Sketcher.Constraint("Vertical", 19, 3, 2, 2),
    Sketcher.Constraint("Vertical", 1, 2, 5, 2),
    Sketcher.Constraint("Vertical", 3, 2, 7, 2),
    Sketcher.Constraint("Vertical", 39, 3, 22, 2),
    Sketcher.Constraint("Vertical", 21, 2, 25, 2),
    Sketcher.Constraint("Vertical", 23, 2, 27, 2),
    Sketcher.Constraint("Vertical", 59, 3, 42, 2),
    Sketcher.Constraint("Vertical", 79, 3, 62, 2),
    Sketcher.Constraint("Equal", 15, 20),
    Sketcher.Constraint("Equal", 1, 6),
    Sketcher.Constraint("Radius", 4, 1.5),
    Sketcher.Constraint("DistanceX", 2, 2, 2, 1, 22.0),
    Sketcher.Constraint("DistanceY", 1, 2, 1, 1, 30.0),
    Sketcher.Constraint("DistanceX", -1, 1, 44, 3, 4.5),
    Sketcher.Constraint("DistanceY", -1, 1, 3, 2, 99.0),
    Sketcher.Constraint("DistanceX", 4, 1, -1, 1, 56.0),
    Sketcher.Constraint("DistanceY", -1, 1, 8, 2, 42.0),
])
pocket1 = body.newObject("PartDesign::Pocket", "Pocket")
pocket1.Profile = sketch2
pocket1.Type = "ThroughAll"
pocket1.Reversed = True
doc.recompute()

fillet = body.newObject("PartDesign::Fillet", "Fillet")
fillet.Base = (pocket1, edges_at(pocket1, [
    (62, 0.05, 109.5),
    (-58, 0.05, 109.5),
    (-62, 0.05, 105.5),
    (62, 0.05, -109.5),
    (-62, 0.05, -109.5),
]))
fillet.Radius = 1

# Sketch on XZ plane
sketch3 = body.newObject("Sketcher::SketchObject", "Sketch002")
sketch3.AttachmentSupport = (doc.getObject("XZ_Plane"), [""])
sketch3.MapMode = "FlatFace"
sketch3.AttachmentOffset = App.Placement(App.Vector(0, 0, -0.1), App.Rotation())
sketch3.addGeometry([
    Part.Circle(App.Vector(-47, 105.5, 0), App.Vector(0, 0, 1), 1.7),  # 0
    Part.Circle(App.Vector(47, 105.5, 0), App.Vector(0, 0, 1), 1.7),  # 1
    Part.Circle(App.Vector(47, -105.5, 0), App.Vector(0, 0, 1), 1.7),  # 2
    Part.Circle(App.Vector(-47, -105.5, 0), App.Vector(0, 0, 1), 1.7),  # 3
    Part.Circle(App.Vector(-47, 0, 0), App.Vector(0, 0, 1), 1.7),  # 4
    Part.Circle(App.Vector(47, 0, 0), App.Vector(0, 0, 1), 1.7),  # 5
], False)
sketch3.addConstraint([
    Sketcher.Constraint("Equal", 0, 1),
    Sketcher.Constraint("Equal", 1, 2),
    Sketcher.Constraint("Equal", 2, 3),
    Sketcher.Constraint("Equal", 3, 4),
    Sketcher.Constraint("Equal", 4, 5),
    Sketcher.Constraint("Symmetric", 0, 3, 2, 3, -1, 1),
    Sketcher.Constraint("Symmetric", 1, 3, 3, 3, -1, 1),
    Sketcher.Constraint("Symmetric", 4, 3, 5, 3, -1, 1),
    Sketcher.Constraint("Symmetric", 0, 3, 1, 3, -2),
    Sketcher.Constraint("PointOnObject", 4, 3, -1),
    Sketcher.Constraint("Vertical", 3, 3, 4, 3),
    Sketcher.Constraint("Diameter", 0, 3.4),
    Sketcher.Constraint("DistanceX", 0, 3, -1, 1, 47.0),
    Sketcher.Constraint("DistanceY", 2, 3, 1, 3, 211.0),
])
doc.recompute()
hole = body.newObject("PartDesign::Hole", "Hole")
hole.Profile = sketch3
hole.ThreadType = "None"
hole.Diameter = 3.4
hole.DepthType = "ThroughAll"
hole.Reversed = True

doc.recompute()
